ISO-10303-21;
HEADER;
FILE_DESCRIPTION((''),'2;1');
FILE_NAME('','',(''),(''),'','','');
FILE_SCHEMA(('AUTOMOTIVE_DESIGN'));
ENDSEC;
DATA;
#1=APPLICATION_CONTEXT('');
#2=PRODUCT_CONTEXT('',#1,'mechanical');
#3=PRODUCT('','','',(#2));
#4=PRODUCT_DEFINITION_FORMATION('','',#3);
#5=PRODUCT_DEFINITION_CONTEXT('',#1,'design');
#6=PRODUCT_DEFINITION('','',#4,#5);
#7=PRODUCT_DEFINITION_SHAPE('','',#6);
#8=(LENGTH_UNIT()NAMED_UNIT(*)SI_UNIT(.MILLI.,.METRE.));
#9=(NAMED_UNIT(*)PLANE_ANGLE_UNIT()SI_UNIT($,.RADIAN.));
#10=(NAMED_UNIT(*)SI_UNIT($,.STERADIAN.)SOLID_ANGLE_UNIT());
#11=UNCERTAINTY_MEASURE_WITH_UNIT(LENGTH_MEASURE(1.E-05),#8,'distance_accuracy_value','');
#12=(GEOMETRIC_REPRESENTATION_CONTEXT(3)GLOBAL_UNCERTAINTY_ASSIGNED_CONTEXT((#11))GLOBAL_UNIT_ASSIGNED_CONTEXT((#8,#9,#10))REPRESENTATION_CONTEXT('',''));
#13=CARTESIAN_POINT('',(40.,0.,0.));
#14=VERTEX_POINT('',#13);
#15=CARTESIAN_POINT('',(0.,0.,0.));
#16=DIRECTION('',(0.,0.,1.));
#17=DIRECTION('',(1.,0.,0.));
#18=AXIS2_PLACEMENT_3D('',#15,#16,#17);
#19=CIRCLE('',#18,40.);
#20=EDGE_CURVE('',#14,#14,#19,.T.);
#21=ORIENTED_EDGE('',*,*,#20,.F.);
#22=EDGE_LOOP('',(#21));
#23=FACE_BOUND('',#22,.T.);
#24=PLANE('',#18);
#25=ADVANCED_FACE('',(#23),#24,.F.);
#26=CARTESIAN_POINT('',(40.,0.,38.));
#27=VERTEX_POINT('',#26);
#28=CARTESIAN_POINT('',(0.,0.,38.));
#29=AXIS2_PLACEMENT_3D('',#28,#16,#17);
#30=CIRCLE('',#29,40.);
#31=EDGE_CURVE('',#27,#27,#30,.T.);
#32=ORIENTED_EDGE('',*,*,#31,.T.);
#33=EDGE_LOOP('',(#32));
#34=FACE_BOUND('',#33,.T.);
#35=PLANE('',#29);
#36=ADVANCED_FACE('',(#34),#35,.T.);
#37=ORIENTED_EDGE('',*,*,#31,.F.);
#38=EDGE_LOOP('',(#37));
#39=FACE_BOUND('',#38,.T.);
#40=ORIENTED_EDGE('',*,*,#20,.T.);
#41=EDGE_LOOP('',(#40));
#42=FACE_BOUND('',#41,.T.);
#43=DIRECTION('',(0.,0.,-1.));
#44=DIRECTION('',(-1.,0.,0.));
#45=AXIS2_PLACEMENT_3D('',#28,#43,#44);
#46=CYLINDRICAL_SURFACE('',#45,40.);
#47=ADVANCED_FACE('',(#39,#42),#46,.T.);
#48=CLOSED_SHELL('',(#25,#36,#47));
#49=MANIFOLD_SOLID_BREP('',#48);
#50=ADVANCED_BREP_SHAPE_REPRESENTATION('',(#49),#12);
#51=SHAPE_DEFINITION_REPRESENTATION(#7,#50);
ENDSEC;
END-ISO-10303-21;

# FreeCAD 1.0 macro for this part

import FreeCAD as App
import Part
import Sketcher
from FreeCAD import Vector
Q = App.Units.Quantity

doc = App.newDocument("Part")
params = doc.addObject("Spreadsheet::Sheet", "Params")
for row, (alias, value) in enumerate([
    ("sketch1_diameter", "80 mm"),
    ("pad1_length", "38 mm"),
], start=1):
    params.set(f"A{row}", alias)
    params.set(f"B{row}", "=" + value)
    params.setAlias(f"B{row}", alias)

body = doc.addObject("PartDesign::Body", "Body")

sketch1 = body.newObject("Sketcher::SketchObject", "Sketch")
sketch1.AttachmentSupport = (doc.getObject("XY_Plane"), [""])
sketch1.MapMode = "FlatFace"
sketch1.addGeometry(Part.Circle(Vector(0, 0, 0), Vector(0, 0, 1), 40), False)
sketch1.addConstraint(Sketcher.Constraint("Coincident", 0, 3, -1, 1))
sketch1.addConstraint(Sketcher.Constraint("Diameter", 0, Q("80 mm")))
sketch1.setExpression("Constraints[1]", "Params.sketch1_diameter")
pad1 = body.newObject("PartDesign::Pad", "Pad")
pad1.Profile = sketch1
pad1.setExpression("Length", "Params.pad1_length")

doc.recompute()
